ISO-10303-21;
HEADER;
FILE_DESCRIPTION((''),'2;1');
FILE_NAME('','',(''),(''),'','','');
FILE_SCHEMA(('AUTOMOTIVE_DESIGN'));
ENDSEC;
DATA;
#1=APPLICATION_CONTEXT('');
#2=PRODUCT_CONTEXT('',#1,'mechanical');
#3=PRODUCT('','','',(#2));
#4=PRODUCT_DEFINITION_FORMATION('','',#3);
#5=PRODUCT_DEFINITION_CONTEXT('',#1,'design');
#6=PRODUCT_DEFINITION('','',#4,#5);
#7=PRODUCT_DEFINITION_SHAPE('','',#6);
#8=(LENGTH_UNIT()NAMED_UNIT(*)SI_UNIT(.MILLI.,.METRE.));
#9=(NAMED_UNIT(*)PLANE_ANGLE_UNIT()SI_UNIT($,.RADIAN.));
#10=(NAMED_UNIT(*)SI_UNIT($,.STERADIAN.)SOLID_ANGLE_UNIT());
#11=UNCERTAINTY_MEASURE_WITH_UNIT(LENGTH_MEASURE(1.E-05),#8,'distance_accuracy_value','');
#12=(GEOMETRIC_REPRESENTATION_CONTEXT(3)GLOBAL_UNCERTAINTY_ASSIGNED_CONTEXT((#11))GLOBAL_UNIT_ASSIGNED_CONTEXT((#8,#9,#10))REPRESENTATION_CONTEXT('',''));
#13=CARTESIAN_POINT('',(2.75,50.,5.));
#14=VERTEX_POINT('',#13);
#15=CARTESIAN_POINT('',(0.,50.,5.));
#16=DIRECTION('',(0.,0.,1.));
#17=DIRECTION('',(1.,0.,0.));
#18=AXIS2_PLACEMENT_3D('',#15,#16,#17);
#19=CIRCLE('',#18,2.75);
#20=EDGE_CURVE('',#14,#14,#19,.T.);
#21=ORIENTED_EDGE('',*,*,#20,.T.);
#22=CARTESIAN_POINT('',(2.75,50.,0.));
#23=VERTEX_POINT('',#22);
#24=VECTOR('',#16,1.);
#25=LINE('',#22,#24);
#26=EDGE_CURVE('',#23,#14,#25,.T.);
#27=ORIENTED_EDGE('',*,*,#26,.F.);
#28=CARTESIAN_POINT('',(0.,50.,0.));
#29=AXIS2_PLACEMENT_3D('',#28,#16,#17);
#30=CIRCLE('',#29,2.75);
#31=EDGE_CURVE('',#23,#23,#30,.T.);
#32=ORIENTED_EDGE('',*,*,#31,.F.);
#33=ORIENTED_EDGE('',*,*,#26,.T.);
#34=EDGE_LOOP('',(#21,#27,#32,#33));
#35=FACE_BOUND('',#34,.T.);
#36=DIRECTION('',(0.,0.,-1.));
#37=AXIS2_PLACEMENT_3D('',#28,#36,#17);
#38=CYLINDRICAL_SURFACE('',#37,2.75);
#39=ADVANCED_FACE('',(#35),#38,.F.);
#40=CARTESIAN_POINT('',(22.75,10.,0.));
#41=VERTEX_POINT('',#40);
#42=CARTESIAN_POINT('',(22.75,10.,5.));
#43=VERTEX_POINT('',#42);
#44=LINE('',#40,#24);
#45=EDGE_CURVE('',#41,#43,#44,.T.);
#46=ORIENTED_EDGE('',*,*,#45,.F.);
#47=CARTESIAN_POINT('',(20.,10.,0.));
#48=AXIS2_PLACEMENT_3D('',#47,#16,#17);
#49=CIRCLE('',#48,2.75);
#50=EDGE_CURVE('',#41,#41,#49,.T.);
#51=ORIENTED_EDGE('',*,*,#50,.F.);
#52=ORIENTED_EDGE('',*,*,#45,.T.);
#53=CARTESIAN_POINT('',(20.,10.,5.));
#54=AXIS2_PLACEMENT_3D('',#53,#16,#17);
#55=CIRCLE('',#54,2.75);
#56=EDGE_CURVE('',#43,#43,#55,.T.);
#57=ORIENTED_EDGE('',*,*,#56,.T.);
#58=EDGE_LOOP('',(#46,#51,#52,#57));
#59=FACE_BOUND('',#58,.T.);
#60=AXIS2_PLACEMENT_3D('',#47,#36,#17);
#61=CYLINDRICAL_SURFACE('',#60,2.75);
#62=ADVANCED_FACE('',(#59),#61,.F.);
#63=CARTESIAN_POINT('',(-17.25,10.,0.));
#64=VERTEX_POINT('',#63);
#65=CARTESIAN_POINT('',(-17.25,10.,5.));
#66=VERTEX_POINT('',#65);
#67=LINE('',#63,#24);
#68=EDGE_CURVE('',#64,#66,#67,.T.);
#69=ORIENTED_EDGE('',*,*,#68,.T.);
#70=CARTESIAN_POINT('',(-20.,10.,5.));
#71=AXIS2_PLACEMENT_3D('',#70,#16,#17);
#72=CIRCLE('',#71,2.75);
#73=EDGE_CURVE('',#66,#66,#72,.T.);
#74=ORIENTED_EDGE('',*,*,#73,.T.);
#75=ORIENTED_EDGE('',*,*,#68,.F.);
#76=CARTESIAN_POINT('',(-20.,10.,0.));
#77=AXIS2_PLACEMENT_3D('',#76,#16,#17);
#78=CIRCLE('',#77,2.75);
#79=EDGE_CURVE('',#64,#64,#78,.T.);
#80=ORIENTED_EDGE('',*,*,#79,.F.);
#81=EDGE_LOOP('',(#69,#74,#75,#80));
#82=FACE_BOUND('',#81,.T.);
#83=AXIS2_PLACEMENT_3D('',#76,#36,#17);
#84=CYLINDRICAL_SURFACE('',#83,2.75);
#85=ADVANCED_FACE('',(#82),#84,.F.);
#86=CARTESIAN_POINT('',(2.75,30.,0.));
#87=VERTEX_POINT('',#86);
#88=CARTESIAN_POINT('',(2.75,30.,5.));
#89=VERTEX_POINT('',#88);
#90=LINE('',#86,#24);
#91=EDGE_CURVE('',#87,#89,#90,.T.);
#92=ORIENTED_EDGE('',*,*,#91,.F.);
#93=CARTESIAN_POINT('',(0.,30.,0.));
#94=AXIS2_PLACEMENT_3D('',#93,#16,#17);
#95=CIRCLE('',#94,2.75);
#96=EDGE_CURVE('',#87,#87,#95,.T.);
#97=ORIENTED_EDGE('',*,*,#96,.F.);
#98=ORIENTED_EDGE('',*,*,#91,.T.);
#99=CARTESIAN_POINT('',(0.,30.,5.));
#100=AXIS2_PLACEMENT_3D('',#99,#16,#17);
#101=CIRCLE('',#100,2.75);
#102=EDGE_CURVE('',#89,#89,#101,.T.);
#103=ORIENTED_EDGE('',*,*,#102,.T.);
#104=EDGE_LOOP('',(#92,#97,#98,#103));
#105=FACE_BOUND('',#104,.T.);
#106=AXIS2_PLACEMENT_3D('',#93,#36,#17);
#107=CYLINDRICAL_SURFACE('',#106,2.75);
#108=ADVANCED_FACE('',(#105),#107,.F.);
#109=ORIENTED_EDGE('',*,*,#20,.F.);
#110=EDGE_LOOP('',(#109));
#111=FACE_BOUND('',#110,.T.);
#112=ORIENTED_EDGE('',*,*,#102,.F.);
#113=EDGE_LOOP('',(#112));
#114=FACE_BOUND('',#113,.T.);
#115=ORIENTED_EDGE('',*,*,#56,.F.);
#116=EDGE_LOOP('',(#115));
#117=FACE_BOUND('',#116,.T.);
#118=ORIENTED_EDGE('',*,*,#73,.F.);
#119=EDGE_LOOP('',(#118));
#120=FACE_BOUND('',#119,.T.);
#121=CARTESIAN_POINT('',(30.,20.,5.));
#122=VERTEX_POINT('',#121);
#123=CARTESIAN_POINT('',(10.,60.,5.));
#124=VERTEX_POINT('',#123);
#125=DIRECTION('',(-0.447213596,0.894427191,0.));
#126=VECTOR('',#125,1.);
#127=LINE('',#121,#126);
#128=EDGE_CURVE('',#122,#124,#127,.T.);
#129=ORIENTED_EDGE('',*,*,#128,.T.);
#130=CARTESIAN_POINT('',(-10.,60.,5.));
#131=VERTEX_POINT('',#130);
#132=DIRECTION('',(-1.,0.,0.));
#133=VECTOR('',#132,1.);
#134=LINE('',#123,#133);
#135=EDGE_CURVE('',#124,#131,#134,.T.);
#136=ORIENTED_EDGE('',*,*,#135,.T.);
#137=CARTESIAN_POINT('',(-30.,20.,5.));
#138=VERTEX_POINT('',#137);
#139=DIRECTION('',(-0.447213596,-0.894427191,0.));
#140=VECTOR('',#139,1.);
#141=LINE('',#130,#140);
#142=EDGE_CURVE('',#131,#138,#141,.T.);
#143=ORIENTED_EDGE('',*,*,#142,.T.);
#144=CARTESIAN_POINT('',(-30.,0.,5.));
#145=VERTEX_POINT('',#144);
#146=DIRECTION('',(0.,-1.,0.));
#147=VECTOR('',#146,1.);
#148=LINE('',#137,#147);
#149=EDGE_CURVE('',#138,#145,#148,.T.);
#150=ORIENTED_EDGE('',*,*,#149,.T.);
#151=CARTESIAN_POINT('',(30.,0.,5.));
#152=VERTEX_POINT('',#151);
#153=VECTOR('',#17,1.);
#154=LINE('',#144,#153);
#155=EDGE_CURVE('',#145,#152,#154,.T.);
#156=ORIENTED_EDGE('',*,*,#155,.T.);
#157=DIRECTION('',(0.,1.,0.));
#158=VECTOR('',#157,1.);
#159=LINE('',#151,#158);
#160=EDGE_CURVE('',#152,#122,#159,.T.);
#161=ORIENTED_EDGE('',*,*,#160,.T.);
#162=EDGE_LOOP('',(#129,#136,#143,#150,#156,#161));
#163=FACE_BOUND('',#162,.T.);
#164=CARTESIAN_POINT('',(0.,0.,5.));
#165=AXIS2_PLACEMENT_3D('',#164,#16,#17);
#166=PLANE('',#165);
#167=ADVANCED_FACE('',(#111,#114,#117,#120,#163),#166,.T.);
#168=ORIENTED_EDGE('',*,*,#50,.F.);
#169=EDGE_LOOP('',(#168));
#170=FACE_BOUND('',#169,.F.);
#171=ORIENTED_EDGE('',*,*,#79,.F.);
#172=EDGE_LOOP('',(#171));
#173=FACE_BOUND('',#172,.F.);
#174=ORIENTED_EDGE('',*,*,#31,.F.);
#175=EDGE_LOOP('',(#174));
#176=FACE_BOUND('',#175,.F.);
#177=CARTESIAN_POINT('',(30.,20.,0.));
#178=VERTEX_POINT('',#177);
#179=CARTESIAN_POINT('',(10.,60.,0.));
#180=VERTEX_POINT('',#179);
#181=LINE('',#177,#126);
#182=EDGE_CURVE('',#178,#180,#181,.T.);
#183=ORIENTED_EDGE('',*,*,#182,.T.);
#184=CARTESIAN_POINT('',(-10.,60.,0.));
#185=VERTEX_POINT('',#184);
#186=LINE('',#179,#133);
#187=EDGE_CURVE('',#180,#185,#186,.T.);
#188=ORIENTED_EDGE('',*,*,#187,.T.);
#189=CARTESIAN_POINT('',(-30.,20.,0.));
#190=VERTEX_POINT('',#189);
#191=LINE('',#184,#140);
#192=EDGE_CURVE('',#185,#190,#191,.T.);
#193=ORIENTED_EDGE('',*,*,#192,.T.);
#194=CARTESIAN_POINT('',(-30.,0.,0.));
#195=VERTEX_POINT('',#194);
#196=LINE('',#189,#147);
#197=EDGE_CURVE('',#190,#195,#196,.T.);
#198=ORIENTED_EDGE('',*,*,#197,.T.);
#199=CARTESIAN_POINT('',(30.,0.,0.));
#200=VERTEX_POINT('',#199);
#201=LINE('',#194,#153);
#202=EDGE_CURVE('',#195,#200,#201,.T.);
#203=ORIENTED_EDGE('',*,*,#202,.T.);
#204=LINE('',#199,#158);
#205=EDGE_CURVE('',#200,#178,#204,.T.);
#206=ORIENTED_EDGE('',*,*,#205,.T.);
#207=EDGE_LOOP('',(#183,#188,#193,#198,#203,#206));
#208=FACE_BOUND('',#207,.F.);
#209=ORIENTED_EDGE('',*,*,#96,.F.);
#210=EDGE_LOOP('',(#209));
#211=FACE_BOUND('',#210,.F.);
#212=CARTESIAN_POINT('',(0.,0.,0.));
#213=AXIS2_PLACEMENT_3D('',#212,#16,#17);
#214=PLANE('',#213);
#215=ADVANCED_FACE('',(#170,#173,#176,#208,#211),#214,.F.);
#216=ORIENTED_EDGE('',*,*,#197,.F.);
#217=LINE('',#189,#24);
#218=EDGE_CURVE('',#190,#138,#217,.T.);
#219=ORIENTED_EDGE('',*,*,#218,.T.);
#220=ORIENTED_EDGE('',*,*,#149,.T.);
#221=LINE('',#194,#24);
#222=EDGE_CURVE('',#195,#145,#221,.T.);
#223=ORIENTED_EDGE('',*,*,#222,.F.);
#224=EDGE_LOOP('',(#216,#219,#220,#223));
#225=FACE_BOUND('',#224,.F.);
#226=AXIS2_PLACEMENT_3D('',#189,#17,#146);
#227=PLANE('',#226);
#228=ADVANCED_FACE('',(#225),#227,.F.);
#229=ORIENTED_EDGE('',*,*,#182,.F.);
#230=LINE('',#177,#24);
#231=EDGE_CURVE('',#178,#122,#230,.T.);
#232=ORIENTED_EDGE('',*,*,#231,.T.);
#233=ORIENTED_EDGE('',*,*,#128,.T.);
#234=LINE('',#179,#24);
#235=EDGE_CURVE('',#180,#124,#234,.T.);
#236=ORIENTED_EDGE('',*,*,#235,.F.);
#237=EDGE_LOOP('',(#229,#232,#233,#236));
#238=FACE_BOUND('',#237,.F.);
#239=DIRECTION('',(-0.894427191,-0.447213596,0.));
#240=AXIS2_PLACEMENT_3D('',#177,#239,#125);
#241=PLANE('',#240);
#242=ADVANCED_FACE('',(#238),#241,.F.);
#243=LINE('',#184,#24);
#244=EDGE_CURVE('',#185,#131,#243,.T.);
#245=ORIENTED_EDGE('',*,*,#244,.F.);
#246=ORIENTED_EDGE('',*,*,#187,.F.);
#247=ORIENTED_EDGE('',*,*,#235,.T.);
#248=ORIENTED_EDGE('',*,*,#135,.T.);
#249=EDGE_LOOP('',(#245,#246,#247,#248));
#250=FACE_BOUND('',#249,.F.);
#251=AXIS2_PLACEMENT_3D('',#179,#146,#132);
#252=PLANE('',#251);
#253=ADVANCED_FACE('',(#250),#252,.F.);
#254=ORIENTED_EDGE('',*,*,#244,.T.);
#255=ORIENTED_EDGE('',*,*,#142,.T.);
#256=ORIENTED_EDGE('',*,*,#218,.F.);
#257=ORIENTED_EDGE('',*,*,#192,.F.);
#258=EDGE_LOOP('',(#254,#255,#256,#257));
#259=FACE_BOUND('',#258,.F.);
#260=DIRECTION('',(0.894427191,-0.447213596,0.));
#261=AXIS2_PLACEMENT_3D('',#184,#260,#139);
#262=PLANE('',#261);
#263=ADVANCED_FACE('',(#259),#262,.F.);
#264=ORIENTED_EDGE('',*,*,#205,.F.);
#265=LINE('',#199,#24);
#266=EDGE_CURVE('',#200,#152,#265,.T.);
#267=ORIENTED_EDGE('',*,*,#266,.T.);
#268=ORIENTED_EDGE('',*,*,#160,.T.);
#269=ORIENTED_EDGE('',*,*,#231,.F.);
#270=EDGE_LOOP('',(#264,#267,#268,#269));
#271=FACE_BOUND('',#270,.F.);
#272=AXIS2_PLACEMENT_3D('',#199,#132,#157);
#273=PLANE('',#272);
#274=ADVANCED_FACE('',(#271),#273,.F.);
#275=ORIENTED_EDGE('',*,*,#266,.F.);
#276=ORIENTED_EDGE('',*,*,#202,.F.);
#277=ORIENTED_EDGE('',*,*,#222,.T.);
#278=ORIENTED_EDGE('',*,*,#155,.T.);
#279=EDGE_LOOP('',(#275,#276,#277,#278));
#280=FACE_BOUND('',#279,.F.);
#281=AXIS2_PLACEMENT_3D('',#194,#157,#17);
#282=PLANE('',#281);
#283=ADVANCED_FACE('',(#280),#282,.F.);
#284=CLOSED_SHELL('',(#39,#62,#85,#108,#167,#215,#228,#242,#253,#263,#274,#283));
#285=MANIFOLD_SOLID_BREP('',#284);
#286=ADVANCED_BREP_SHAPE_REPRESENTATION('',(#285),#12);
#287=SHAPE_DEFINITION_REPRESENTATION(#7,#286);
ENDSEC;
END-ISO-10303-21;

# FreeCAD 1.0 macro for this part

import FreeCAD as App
import Part
import Sketcher

V = App.Vector

doc = App.newDocument("Part")
body = doc.addObject("PartDesign::Body", "Body")

# Sketch on XY plane
sketch1 = body.newObject("Sketcher::SketchObject", "Sketch")
sketch1.AttachmentSupport = (doc.getObject("XY_Plane"), [""])
sketch1.MapMode = "FlatFace"
sketch1.addGeometry([
    Part.LineSegment(V(-30, 20, 0), V(-30, 0, 0)),  # 0
    Part.LineSegment(V(-30, 0, 0), V(30, 0, 0)),  # 1
    Part.LineSegment(V(30, 0, 0), V(30, 20, 0)),  # 2
    Part.LineSegment(V(30, 20, 0), V(10, 60, 0)),  # 3
    Part.LineSegment(V(10, 60, 0), V(-10, 60, 0)),  # 4
    Part.LineSegment(V(-10, 60, 0), V(-30, 20, 0)),  # 5
    Part.Circle(V(-20, 10, 0), V(0, 0, 1), 2.8),  # 6
    Part.Circle(V(20, 10, 0), V(0, 0, 1), 2.8),  # 7
    Part.Circle(V(0, 30, 0), V(0, 0, 1), 2.8),  # 8
    Part.Circle(V(0, 50, 0), V(0, 0, 1), 2.8),  # 9
], False)
sketch1.addConstraint([
    Sketcher.Constraint("Coincident", 0, 2, 1, 1),
    Sketcher.Constraint("Coincident", 1, 2, 2, 1),
    Sketcher.Constraint("Coincident", 2, 2, 3, 1),
    Sketcher.Constraint("Coincident", 3, 2, 4, 1),
    Sketcher.Constraint("Coincident", 4, 2, 5, 1),
    Sketcher.Constraint("Coincident", 5, 2, 0, 1),
    Sketcher.Constraint("Vertical", 0),
    Sketcher.Constraint("Horizontal", 1),
    Sketcher.Constraint("Vertical", 2),
    Sketcher.Constraint("Horizontal", 4),
    Sketcher.Constraint("Equal", 6, 7),
    Sketcher.Constraint("Equal", 7, 8),
    Sketcher.Constraint("Equal", 8, 9),
    Sketcher.Constraint("Symmetric", 0, 2, 1, 2, -1, 1),
    Sketcher.Constraint("Symmetric", 6, 3, 7, 3, -2),
    Sketcher.Constraint("PointOnObject", 8, 3, -2),
    Sketcher.Constraint("PointOnObject", 9, 3, -2),
    Sketcher.Constraint("Horizontal", 2, 2, 5, 2),
    Sketcher.Constraint("Equal", 4, 0),
    Sketcher.Constraint("Equal", 3, 5),
    Sketcher.Constraint("Diameter", 6, 5.5),
    Sketcher.Constraint("DistanceX", 1, 1, 1, 2, 60.0),
    Sketcher.Constraint("DistanceX", 4, 2, 4, 1, 20.0),
    Sketcher.Constraint("DistanceX", 6, 3, -1, 1, 20.0),
    Sketcher.Constraint("DistanceY", -1, 1, 6, 3, 10.0),
    Sketcher.Constraint("DistanceY", -1, 1, 3, 2, 60.0),
    Sketcher.Constraint("DistanceY", 6, 3, 8, 3, 20.0),
    Sketcher.Constraint("DistanceY", 8, 3, 9, 3, 20.0),
])
pad1 = body.newObject("PartDesign::Pad", "Pad")
pad1.Profile = sketch1
pad1.Length = 5

doc.recompute()
